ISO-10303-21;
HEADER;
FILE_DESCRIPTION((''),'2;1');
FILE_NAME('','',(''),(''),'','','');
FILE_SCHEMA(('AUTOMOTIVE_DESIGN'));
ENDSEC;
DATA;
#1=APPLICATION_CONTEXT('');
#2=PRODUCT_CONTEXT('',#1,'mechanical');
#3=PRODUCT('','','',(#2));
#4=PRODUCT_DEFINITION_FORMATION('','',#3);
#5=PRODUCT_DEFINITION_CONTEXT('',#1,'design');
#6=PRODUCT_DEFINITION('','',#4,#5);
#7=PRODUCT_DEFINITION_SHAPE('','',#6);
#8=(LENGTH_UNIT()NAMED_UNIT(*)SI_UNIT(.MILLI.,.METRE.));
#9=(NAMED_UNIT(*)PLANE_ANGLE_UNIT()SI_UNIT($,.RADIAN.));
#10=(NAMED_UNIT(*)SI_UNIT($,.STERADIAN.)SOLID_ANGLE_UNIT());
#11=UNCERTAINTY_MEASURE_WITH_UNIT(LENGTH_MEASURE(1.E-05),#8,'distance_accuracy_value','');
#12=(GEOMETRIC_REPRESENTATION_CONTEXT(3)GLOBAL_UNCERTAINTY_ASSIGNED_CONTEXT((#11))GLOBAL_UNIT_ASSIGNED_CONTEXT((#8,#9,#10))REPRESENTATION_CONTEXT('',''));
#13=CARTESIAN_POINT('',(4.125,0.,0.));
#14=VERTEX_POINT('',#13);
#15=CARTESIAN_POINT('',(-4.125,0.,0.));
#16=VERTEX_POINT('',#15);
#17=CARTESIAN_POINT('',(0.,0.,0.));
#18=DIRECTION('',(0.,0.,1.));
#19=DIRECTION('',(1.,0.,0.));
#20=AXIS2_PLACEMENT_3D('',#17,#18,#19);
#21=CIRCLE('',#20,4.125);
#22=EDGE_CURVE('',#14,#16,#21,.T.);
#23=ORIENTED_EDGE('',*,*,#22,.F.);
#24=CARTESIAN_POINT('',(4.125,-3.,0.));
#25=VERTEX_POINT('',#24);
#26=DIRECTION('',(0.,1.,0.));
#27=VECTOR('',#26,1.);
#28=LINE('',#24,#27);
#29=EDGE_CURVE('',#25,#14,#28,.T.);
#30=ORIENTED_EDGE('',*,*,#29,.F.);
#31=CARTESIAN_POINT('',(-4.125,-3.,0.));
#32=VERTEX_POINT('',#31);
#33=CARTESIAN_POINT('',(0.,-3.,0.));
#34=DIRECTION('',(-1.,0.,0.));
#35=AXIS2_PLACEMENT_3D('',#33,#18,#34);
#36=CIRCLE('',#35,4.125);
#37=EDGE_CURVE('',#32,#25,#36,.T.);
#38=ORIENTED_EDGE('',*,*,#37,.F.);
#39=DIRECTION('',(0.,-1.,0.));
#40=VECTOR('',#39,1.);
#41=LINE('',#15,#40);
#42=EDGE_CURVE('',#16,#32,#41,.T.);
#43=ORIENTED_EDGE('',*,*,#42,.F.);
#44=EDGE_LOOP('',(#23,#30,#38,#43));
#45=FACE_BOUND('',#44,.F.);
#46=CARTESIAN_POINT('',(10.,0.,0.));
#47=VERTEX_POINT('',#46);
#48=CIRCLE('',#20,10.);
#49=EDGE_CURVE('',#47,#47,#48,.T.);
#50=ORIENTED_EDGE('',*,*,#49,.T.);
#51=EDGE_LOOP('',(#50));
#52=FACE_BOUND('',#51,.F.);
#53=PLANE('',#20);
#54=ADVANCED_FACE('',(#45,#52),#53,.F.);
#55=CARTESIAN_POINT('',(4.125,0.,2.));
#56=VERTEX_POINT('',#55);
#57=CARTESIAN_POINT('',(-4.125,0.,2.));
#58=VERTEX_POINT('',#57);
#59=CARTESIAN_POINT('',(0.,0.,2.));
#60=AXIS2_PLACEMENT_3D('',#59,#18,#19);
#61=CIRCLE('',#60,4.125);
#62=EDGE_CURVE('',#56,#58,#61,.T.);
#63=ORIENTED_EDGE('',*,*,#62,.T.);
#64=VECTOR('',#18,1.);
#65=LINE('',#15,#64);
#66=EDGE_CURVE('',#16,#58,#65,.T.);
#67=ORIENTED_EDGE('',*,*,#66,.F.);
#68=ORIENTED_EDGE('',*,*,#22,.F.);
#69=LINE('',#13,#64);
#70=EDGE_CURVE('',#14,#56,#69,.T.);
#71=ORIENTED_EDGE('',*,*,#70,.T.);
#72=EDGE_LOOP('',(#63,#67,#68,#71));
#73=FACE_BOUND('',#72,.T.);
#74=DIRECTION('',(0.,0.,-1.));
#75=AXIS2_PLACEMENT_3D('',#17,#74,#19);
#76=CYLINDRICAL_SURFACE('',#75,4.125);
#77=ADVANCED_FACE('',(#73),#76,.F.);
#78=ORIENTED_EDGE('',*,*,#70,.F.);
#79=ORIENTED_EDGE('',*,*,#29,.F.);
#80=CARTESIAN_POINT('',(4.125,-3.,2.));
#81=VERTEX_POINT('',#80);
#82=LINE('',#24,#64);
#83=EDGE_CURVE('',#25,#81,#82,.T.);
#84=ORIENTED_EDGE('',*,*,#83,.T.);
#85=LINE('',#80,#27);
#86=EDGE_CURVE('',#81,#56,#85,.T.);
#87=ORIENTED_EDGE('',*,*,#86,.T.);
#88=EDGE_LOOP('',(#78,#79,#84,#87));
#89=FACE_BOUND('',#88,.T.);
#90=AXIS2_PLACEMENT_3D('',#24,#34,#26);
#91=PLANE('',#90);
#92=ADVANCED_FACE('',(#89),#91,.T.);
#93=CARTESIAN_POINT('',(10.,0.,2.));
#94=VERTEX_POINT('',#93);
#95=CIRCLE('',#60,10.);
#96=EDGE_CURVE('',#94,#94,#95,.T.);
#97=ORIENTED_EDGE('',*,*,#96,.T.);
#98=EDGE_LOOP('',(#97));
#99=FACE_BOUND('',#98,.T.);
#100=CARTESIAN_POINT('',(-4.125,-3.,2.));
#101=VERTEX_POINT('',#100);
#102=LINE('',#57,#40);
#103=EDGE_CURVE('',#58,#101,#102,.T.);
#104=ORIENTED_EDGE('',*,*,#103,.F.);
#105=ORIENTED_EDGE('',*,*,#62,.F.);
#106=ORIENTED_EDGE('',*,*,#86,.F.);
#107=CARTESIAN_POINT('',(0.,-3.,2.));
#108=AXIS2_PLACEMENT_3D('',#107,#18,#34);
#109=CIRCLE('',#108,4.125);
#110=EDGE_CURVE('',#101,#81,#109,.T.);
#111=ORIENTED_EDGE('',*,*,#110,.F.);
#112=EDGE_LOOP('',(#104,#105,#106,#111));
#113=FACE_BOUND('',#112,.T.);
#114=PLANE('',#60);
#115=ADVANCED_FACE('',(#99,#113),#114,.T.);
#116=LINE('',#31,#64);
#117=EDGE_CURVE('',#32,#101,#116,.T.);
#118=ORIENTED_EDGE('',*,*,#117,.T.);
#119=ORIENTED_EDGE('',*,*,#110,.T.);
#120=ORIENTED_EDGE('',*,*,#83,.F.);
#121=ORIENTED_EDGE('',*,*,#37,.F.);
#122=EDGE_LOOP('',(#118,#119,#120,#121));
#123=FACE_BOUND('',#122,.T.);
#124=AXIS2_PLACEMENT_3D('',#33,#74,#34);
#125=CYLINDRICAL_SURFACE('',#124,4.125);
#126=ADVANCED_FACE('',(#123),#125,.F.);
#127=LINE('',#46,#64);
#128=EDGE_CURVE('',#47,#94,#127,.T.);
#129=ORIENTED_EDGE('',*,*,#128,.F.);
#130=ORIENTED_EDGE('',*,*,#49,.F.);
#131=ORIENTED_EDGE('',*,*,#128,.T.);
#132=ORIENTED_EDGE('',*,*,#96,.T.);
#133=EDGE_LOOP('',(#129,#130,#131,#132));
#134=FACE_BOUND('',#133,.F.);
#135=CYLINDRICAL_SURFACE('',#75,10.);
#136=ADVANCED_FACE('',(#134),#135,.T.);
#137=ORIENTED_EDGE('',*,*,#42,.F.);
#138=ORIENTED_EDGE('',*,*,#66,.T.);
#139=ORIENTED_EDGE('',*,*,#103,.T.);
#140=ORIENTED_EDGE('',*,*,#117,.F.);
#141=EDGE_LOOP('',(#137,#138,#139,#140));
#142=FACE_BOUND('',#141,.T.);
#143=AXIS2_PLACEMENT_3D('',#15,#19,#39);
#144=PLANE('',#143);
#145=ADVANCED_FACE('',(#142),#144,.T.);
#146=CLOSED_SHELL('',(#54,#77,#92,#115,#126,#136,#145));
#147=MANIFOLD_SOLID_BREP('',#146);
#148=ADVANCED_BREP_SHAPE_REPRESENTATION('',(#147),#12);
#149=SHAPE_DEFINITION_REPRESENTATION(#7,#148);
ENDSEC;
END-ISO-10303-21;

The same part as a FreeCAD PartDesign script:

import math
import FreeCAD as App
import Part
import Sketcher

V = App.Vector
Q = App.Units.Quantity

doc = App.newDocument("Part")
body = doc.addObject("PartDesign::Body", "Body")

# Sketch on XY plane
sketch1 = body.newObject("Sketcher::SketchObject", "Sketch")
sketch1.AttachmentSupport = (doc.getObject("XY_Plane"), [""])
sketch1.MapMode = "FlatFace"
sketch1.addGeometry(Part.Circle(V(0, 0, 0), V(0, 0, 1), 10), False)
sketch1.addGeometry(Part.LineSegment(V(-4.1, -3, 0), V(-4.1, 0, 0)), False)
sketch1.addGeometry(Part.ArcOfCircle(Part.Circle(V(0, 0, 0), V(0, 0, 1), 4.1), math.radians(0), math.radians(180)), False)
sketch1.addGeometry(Part.LineSegment(V(4.1, 0, 0), V(4.1, -3, 0)), False)
sketch1.addGeometry(Part.ArcOfCircle(Part.Circle(V(0, -3, 0), V(0, 0, 1), 4.1), math.radians(180), math.radians(360)), False)
sketch1.addConstraint(Sketcher.Constraint("Tangent", 1, 2, 2, 2))
sketch1.addConstraint(Sketcher.Constraint("Tangent", 2, 1, 3, 1))
sketch1.addConstraint(Sketcher.Constraint("Tangent", 3, 2, 4, 2))
sketch1.addConstraint(Sketcher.Constraint("Tangent", 4, 1, 1, 1))
sketch1.addConstraint(Sketcher.Constraint("Vertical", 1))
sketch1.addConstraint(Sketcher.Constraint("Vertical", 3))
sketch1.addConstraint(Sketcher.Constraint("Coincident", 0, 3, -1, 1))
sketch1.addConstraint(Sketcher.Constraint("Coincident", 2, 3, -1, 1))
sketch1.addConstraint(Sketcher.Constraint("Diameter", 0, Q("20 mm")))
sketch1.addConstraint(Sketcher.Constraint("DistanceY", 1, 1, 1, 2, Q("3 mm")))
sketch1.addConstraint(Sketcher.Constraint("Radius", 2, Q("4.125 mm")))
pad1 = body.newObject("PartDesign::Pad", "Pad")
pad1.Profile = sketch1
pad1.Length = 2

doc.recompute()
